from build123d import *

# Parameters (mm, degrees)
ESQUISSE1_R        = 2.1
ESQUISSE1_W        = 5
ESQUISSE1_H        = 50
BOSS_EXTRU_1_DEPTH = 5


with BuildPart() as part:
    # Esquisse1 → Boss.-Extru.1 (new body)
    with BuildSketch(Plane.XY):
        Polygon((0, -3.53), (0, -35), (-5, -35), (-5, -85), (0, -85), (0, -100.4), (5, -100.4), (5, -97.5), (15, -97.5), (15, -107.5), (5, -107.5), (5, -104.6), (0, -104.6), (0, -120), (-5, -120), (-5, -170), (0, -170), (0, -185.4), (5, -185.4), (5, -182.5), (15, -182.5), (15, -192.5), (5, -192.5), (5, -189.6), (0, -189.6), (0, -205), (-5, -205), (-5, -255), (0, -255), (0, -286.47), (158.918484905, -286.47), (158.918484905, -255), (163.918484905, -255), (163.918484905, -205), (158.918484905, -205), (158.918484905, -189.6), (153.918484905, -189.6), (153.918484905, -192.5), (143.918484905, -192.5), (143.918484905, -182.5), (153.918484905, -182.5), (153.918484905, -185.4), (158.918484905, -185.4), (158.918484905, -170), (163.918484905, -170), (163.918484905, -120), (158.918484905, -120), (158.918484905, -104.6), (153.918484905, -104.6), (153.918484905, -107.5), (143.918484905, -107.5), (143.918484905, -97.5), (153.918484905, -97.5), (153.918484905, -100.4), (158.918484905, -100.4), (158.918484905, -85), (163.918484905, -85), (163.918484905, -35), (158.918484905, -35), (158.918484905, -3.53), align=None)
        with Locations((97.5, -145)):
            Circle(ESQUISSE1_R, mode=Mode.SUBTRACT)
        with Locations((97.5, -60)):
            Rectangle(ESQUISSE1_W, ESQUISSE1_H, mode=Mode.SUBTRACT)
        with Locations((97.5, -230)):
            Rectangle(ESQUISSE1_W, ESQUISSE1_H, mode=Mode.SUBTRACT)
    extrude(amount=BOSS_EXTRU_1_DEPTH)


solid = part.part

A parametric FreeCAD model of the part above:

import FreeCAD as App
import Part
import Sketcher


def add_polygon(sketch, points):
    """Adds a closed chain of lines whose ends are joined by coincident constraints."""
    first, n = sketch.GeometryCount, len(points)
    for a, b in zip(points, points[1:] + points[:1]):
        sketch.addGeometry(Part.LineSegment(App.Vector(*a, 0), App.Vector(*b, 0)), False)
    for i in range(n):
        sketch.addConstraint(Sketcher.Constraint("Coincident", first + i, 2, first + (i + 1) % n, 1))

doc = App.newDocument("Part")
body = doc.addObject("PartDesign::Body", "Body")

sketch1 = body.newObject("Sketcher::SketchObject", "Sketch")
sketch1.AttachmentSupport = (doc.getObject("XY_Plane"), [""])
sketch1.MapMode = "FlatFace"
add_polygon(sketch1, [(0, -3.53), (0, -35), (-5, -35), (-5, -85), (0, -85), (0, -100.4), (5, -100.4), (5, -97.5), (15, -97.5), (15, -107.5), (5, -107.5), (5, -104.6), (0, -104.6), (0, -120), (-5, -120), (-5, -170), (0, -170), (0, -185.4), (5, -185.4), (5, -182.5), (15, -182.5), (15, -192.5), (5, -192.5), (5, -189.6), (0, -189.6), (0, -205), (-5, -205), (-5, -255), (0, -255), (0, -286.47), (158.918485, -286.47), (158.918485, -255), (163.918485, -255), (163.918485, -205), (158.918485, -205), (158.918485, -189.6), (153.918485, -189.6), (153.918485, -192.5), (143.918485, -192.5), (143.918485, -182.5), (153.918485, -182.5), (153.918485, -185.4), (158.918485, -185.4), (158.918485, -170), (163.918485, -170), (163.918485, -120), (158.918485, -120), (158.918485, -104.6), (153.918485, -104.6), (153.918485, -107.5), (143.918485, -107.5), (143.918485, -97.5), (153.918485, -97.5), (153.918485, -100.4), (158.918485, -100.4), (158.918485, -85), (163.918485, -85), (163.918485, -35), (158.918485, -35), (158.918485, -3.53)])
add_polygon(sketch1, [(100, -255), (95, -255), (95, -205), (100, -205)])
sketch1.addGeometry(Part.Circle(App.Vector(97.5, -145, 0), App.Vector(0, 0, 1), 2.1), False)
add_polygon(sketch1, [(100, -85), (95, -85), (95, -35), (100, -35)])
sketch1.addConstraint(Sketcher.Constraint("Vertical", 0))
sketch1.addConstraint(Sketcher.Constraint("Horizontal", 1))
sketch1.addConstraint(Sketcher.Constraint("Vertical", 2))
sketch1.addConstraint(Sketcher.Constraint("Horizontal", 3))
sketch1.addConstraint(Sketcher.Constraint("Vertical", 4))
sketch1.addConstraint(Sketcher.Constraint("Horizontal", 5))
sketch1.addConstraint(Sketcher.Constraint("Vertical", 6))
sketch1.addConstraint(Sketcher.Constraint("Horizontal", 7))
sketch1.addConstraint(Sketcher.Constraint("Vertical", 8))
sketch1.addConstraint(Sketcher.Constraint("Horizontal", 9))
sketch1.addConstraint(Sketcher.Constraint("Vertical", 10))
sketch1.addConstraint(Sketcher.Constraint("Horizontal", 11))
sketch1.addConstraint(Sketcher.Constraint("Vertical", 12))
sketch1.addConstraint(Sketcher.Constraint("Horizontal", 13))
sketch1.addConstraint(Sketcher.Constraint("Vertical", 14))
sketch1.addConstraint(Sketcher.Constraint("Horizontal", 15))
sketch1.addConstraint(Sketcher.Constraint("Vertical", 16))
sketch1.addConstraint(Sketcher.Constraint("Horizontal", 17))
sketch1.addConstraint(Sketcher.Constraint("Vertical", 18))
sketch1.addConstraint(Sketcher.Constraint("Horizontal", 19))
sketch1.addConstraint(Sketcher.Constraint("Vertical", 20))
sketch1.addConstraint(Sketcher.Constraint("Horizontal", 21))
sketch1.addConstraint(Sketcher.Constraint("Vertical", 22))
sketch1.addConstraint(Sketcher.Constraint("Horizontal", 23))
sketch1.addConstraint(Sketcher.Constraint("Vertical", 24))
sketch1.addConstraint(Sketcher.Constraint("Horizontal", 25))
sketch1.addConstraint(Sketcher.Constraint("Vertical", 26))
sketch1.addConstraint(Sketcher.Constraint("Horizontal", 27))
sketch1.addConstraint(Sketcher.Constraint("Vertical", 28))
sketch1.addConstraint(Sketcher.Constraint("Horizontal", 29))
sketch1.addConstraint(Sketcher.Constraint("Vertical", 30))
sketch1.addConstraint(Sketcher.Constraint("Horizontal", 31))
sketch1.addConstraint(Sketcher.Constraint("Vertical", 32))
sketch1.addConstraint(Sketcher.Constraint("Horizontal", 33))
sketch1.addConstraint(Sketcher.Constraint("Vertical", 34))
sketch1.addConstraint(Sketcher.Constraint("Horizontal", 35))
sketch1.addConstraint(Sketcher.Constraint("Vertical", 36))
sketch1.addConstraint(Sketcher.Constraint("Horizontal", 37))
sketch1.addConstraint(Sketcher.Constraint("Vertical", 38))
sketch1.addConstraint(Sketcher.Constraint("Horizontal", 39))
sketch1.addConstraint(Sketcher.Constraint("Vertical", 40))
sketch1.addConstraint(Sketcher.Constraint("Horizontal", 41))
sketch1.addConstraint(Sketcher.Constraint("Vertical", 42))
sketch1.addConstraint(Sketcher.Constraint("Horizontal", 43))
sketch1.addConstraint(Sketcher.Constraint("Vertical", 44))
sketch1.addConstraint(Sketcher.Constraint("Horizontal", 45))
sketch1.addConstraint(Sketcher.Constraint("Vertical", 46))
sketch1.addConstraint(Sketcher.Constraint("Horizontal", 47))
sketch1.addConstraint(Sketcher.Constraint("Vertical", 48))
sketch1.addConstraint(Sketcher.Constraint("Horizontal", 49))
sketch1.addConstraint(Sketcher.Constraint("Vertical", 50))
sketch1.addConstraint(Sketcher.Constraint("Horizontal", 51))
sketch1.addConstraint(Sketcher.Constraint("Vertical", 52))
sketch1.addConstraint(Sketcher.Constraint("Horizontal", 53))
sketch1.addConstraint(Sketcher.Constraint("Vertical", 54))
sketch1.addConstraint(Sketcher.Constraint("Horizontal", 55))
sketch1.addConstraint(Sketcher.Constraint("Vertical", 56))
sketch1.addConstraint(Sketcher.Constraint("Horizontal", 57))
sketch1.addConstraint(Sketcher.Constraint("Vertical", 58))
sketch1.addConstraint(Sketcher.Constraint("Horizontal", 59))
sketch1.addConstraint(Sketcher.Constraint("Horizontal", 60))
sketch1.addConstraint(Sketcher.Constraint("Vertical", 61))
sketch1.addConstraint(Sketcher.Constraint("Horizontal", 62))
sketch1.addConstraint(Sketcher.Constraint("Vertical", 63))
sketch1.addConstraint(Sketcher.Constraint("Horizontal", 65))
sketch1.addConstraint(Sketcher.Constraint("Vertical", 66))
sketch1.addConstraint(Sketcher.Constraint("Horizontal", 67))
sketch1.addConstraint(Sketcher.Constraint("Vertical", 68))
sketch1.addConstraint(Sketcher.Constraint("PointOnObject", 0, 2, -2))
sketch1.addConstraint(Sketcher.Constraint("PointOnObject", 3, 2, -2))
sketch1.addConstraint(Sketcher.Constraint("PointOnObject", 11, 2, -2))
sketch1.addConstraint(Sketcher.Constraint("PointOnObject", 15, 2, -2))
sketch1.addConstraint(Sketcher.Constraint("PointOnObject", 23, 2, -2))
sketch1.addConstraint(Sketcher.Constraint("PointOnObject", 27, 2, -2))
sketch1.addConstraint(Sketcher.Constraint("Horizontal", 27, 2, 30, 2))
sketch1.addConstraint(Sketcher.Constraint("Horizontal", 25, 2, 32, 2))
sketch1.addConstraint(Sketcher.Constraint("Horizontal", 23, 2, 34, 2))
sketch1.addConstraint(Sketcher.Constraint("Horizontal", 21, 2, 36, 2))
sketch1.addConstraint(Sketcher.Constraint("Horizontal", 19, 2, 38, 2))
sketch1.addConstraint(Sketcher.Constraint("Horizontal", 17, 2, 40, 2))
sketch1.addConstraint(Sketcher.Constraint("Horizontal", 15, 2, 42, 2))
sketch1.addConstraint(Sketcher.Constraint("Horizontal", 13, 2, 44, 2))
sketch1.addConstraint(Sketcher.Constraint("Horizontal", 11, 2, 46, 2))
sketch1.addConstraint(Sketcher.Constraint("Horizontal", 9, 2, 48, 2))
sketch1.addConstraint(Sketcher.Constraint("Horizontal", 7, 2, 50, 2))
sketch1.addConstraint(Sketcher.Constraint("Horizontal", 5, 2, 52, 2))
sketch1.addConstraint(Sketcher.Constraint("Horizontal", 3, 2, 54, 2))
sketch1.addConstraint(Sketcher.Constraint("Horizontal", 1, 2, 56, 2))
sketch1.addConstraint(Sketcher.Constraint("Horizontal", 31, 2, 60, 2))
sketch1.addConstraint(Sketcher.Constraint("Horizontal", 33, 2, 61, 2))
sketch1.addConstraint(Sketcher.Constraint("Horizontal", 55, 2, 65, 2))
sketch1.addConstraint(Sketcher.Constraint("Horizontal", 57, 2, 66, 2))
sketch1.addConstraint(Sketcher.Constraint("Vertical", 6, 2, 9, 2))
sketch1.addConstraint(Sketcher.Constraint("Vertical", 2, 2, 13, 2))
sketch1.addConstraint(Sketcher.Constraint("Vertical", 10, 2, 17, 2))
sketch1.addConstraint(Sketcher.Constraint("Vertical", 8, 2, 19, 2))
sketch1.addConstraint(Sketcher.Constraint("Vertical", 18, 2, 21, 2))
sketch1.addConstraint(Sketcher.Constraint("Vertical", 14, 2, 25, 2))
sketch1.addConstraint(Sketcher.Constraint("Vertical", 30, 2, 33, 2))
sketch1.addConstraint(Sketcher.Constraint("Vertical", 36, 2, 39, 2))
sketch1.addConstraint(Sketcher.Constraint("Vertical", 34, 2, 41, 2))
sketch1.addConstraint(Sketcher.Constraint("Vertical", 32, 2, 43, 2))
sketch1.addConstraint(Sketcher.Constraint("Vertical", 42, 2, 45, 2))
sketch1.addConstraint(Sketcher.Constraint("Vertical", 40, 2, 47, 2))
sketch1.addConstraint(Sketcher.Constraint("Vertical", 38, 2, 49, 2))
sketch1.addConstraint(Sketcher.Constraint("Vertical", 48, 2, 51, 2))
sketch1.addConstraint(Sketcher.Constraint("Vertical", 46, 2, 53, 2))
sketch1.addConstraint(Sketcher.Constraint("Vertical", 44, 2, 55, 2))
sketch1.addConstraint(Sketcher.Constraint("Vertical", 54, 2, 57, 2))
sketch1.addConstraint(Sketcher.Constraint("Vertical", 61, 2, 65, 2))
sketch1.addConstraint(Sketcher.Constraint("Vertical", 63, 2, 67, 2))
sketch1.addConstraint(Sketcher.Constraint("Equal", 3, 5))
sketch1.addConstraint(Sketcher.Constraint("Equal", 27, 31))
sketch1.addConstraint(Sketcher.Constraint("Equal", 33, 35))
sketch1.addConstraint(Sketcher.Constraint("Equal", 21, 37))
sketch1.addConstraint(Sketcher.Constraint("Equal", 57, 60))
sketch1.addConstraint(Sketcher.Constraint("Equal", 51, 8))
sketch1.addConstraint(Sketcher.Constraint("Equal", 6, 10))
sketch1.addConstraint(Sketcher.Constraint("Equal", 4, 12))
sketch1.addConstraint(Sketcher.Constraint("Equal", 2, 14))
sketch1.addConstraint(Sketcher.Constraint("Equal", 12, 16))
sketch1.addConstraint(Sketcher.Constraint("Equal", 10, 18))
sketch1.addConstraint(Sketcher.Constraint("Equal", 8, 20))
sketch1.addConstraint(Sketcher.Constraint("Equal", 18, 22))
sketch1.addConstraint(Sketcher.Constraint("Equal", 16, 24))
sketch1.addConstraint(Sketcher.Constraint("Equal", 14, 26))
sketch1.addConstraint(Sketcher.Constraint("Equal", 0, 28))
sketch1.addConstraint(Sketcher.Constraint("Diameter", 64, 4.2))
sketch1.addConstraint(Sketcher.Constraint("DistanceX", 1, 2, 1, 1, 5.0))
sketch1.addConstraint(Sketcher.Constraint("DistanceX", 7, 1, 7, 2, 10.0))
sketch1.addConstraint(Sketcher.Constraint("DistanceY", 2, 2, 2, 1, 50.0))
sketch1.addConstraint(Sketcher.Constraint("DistanceY", 4, 2, 4, 1, 15.4))
sketch1.addConstraint(Sketcher.Constraint("DistanceY", 6, 1, 6, 2, 2.9))
sketch1.addConstraint(Sketcher.Constraint("DistanceY", 64, 3, -1, 1, 145.0))
sketch1.addConstraint(Sketcher.Constraint("DistanceY", 0, 2, -1, 1, 35.0))
sketch1.addConstraint(Sketcher.Constraint("DistanceX", -1, 1, 60, 2, 95.0))
sketch1.addConstraint(Sketcher.Constraint("DistanceY", 0, 2, 0, 1, 31.47))
sketch1.addConstraint(Sketcher.Constraint("DistanceX", -1, 1, 64, 3, 97.5))
sketch1.addConstraint(Sketcher.Constraint("DistanceX", 29, 1, 29, 2, 158.918485))
pad1 = body.newObject("PartDesign::Pad", "Pad")
pad1.Profile = sketch1
pad1.Length = 5

doc.recompute()
